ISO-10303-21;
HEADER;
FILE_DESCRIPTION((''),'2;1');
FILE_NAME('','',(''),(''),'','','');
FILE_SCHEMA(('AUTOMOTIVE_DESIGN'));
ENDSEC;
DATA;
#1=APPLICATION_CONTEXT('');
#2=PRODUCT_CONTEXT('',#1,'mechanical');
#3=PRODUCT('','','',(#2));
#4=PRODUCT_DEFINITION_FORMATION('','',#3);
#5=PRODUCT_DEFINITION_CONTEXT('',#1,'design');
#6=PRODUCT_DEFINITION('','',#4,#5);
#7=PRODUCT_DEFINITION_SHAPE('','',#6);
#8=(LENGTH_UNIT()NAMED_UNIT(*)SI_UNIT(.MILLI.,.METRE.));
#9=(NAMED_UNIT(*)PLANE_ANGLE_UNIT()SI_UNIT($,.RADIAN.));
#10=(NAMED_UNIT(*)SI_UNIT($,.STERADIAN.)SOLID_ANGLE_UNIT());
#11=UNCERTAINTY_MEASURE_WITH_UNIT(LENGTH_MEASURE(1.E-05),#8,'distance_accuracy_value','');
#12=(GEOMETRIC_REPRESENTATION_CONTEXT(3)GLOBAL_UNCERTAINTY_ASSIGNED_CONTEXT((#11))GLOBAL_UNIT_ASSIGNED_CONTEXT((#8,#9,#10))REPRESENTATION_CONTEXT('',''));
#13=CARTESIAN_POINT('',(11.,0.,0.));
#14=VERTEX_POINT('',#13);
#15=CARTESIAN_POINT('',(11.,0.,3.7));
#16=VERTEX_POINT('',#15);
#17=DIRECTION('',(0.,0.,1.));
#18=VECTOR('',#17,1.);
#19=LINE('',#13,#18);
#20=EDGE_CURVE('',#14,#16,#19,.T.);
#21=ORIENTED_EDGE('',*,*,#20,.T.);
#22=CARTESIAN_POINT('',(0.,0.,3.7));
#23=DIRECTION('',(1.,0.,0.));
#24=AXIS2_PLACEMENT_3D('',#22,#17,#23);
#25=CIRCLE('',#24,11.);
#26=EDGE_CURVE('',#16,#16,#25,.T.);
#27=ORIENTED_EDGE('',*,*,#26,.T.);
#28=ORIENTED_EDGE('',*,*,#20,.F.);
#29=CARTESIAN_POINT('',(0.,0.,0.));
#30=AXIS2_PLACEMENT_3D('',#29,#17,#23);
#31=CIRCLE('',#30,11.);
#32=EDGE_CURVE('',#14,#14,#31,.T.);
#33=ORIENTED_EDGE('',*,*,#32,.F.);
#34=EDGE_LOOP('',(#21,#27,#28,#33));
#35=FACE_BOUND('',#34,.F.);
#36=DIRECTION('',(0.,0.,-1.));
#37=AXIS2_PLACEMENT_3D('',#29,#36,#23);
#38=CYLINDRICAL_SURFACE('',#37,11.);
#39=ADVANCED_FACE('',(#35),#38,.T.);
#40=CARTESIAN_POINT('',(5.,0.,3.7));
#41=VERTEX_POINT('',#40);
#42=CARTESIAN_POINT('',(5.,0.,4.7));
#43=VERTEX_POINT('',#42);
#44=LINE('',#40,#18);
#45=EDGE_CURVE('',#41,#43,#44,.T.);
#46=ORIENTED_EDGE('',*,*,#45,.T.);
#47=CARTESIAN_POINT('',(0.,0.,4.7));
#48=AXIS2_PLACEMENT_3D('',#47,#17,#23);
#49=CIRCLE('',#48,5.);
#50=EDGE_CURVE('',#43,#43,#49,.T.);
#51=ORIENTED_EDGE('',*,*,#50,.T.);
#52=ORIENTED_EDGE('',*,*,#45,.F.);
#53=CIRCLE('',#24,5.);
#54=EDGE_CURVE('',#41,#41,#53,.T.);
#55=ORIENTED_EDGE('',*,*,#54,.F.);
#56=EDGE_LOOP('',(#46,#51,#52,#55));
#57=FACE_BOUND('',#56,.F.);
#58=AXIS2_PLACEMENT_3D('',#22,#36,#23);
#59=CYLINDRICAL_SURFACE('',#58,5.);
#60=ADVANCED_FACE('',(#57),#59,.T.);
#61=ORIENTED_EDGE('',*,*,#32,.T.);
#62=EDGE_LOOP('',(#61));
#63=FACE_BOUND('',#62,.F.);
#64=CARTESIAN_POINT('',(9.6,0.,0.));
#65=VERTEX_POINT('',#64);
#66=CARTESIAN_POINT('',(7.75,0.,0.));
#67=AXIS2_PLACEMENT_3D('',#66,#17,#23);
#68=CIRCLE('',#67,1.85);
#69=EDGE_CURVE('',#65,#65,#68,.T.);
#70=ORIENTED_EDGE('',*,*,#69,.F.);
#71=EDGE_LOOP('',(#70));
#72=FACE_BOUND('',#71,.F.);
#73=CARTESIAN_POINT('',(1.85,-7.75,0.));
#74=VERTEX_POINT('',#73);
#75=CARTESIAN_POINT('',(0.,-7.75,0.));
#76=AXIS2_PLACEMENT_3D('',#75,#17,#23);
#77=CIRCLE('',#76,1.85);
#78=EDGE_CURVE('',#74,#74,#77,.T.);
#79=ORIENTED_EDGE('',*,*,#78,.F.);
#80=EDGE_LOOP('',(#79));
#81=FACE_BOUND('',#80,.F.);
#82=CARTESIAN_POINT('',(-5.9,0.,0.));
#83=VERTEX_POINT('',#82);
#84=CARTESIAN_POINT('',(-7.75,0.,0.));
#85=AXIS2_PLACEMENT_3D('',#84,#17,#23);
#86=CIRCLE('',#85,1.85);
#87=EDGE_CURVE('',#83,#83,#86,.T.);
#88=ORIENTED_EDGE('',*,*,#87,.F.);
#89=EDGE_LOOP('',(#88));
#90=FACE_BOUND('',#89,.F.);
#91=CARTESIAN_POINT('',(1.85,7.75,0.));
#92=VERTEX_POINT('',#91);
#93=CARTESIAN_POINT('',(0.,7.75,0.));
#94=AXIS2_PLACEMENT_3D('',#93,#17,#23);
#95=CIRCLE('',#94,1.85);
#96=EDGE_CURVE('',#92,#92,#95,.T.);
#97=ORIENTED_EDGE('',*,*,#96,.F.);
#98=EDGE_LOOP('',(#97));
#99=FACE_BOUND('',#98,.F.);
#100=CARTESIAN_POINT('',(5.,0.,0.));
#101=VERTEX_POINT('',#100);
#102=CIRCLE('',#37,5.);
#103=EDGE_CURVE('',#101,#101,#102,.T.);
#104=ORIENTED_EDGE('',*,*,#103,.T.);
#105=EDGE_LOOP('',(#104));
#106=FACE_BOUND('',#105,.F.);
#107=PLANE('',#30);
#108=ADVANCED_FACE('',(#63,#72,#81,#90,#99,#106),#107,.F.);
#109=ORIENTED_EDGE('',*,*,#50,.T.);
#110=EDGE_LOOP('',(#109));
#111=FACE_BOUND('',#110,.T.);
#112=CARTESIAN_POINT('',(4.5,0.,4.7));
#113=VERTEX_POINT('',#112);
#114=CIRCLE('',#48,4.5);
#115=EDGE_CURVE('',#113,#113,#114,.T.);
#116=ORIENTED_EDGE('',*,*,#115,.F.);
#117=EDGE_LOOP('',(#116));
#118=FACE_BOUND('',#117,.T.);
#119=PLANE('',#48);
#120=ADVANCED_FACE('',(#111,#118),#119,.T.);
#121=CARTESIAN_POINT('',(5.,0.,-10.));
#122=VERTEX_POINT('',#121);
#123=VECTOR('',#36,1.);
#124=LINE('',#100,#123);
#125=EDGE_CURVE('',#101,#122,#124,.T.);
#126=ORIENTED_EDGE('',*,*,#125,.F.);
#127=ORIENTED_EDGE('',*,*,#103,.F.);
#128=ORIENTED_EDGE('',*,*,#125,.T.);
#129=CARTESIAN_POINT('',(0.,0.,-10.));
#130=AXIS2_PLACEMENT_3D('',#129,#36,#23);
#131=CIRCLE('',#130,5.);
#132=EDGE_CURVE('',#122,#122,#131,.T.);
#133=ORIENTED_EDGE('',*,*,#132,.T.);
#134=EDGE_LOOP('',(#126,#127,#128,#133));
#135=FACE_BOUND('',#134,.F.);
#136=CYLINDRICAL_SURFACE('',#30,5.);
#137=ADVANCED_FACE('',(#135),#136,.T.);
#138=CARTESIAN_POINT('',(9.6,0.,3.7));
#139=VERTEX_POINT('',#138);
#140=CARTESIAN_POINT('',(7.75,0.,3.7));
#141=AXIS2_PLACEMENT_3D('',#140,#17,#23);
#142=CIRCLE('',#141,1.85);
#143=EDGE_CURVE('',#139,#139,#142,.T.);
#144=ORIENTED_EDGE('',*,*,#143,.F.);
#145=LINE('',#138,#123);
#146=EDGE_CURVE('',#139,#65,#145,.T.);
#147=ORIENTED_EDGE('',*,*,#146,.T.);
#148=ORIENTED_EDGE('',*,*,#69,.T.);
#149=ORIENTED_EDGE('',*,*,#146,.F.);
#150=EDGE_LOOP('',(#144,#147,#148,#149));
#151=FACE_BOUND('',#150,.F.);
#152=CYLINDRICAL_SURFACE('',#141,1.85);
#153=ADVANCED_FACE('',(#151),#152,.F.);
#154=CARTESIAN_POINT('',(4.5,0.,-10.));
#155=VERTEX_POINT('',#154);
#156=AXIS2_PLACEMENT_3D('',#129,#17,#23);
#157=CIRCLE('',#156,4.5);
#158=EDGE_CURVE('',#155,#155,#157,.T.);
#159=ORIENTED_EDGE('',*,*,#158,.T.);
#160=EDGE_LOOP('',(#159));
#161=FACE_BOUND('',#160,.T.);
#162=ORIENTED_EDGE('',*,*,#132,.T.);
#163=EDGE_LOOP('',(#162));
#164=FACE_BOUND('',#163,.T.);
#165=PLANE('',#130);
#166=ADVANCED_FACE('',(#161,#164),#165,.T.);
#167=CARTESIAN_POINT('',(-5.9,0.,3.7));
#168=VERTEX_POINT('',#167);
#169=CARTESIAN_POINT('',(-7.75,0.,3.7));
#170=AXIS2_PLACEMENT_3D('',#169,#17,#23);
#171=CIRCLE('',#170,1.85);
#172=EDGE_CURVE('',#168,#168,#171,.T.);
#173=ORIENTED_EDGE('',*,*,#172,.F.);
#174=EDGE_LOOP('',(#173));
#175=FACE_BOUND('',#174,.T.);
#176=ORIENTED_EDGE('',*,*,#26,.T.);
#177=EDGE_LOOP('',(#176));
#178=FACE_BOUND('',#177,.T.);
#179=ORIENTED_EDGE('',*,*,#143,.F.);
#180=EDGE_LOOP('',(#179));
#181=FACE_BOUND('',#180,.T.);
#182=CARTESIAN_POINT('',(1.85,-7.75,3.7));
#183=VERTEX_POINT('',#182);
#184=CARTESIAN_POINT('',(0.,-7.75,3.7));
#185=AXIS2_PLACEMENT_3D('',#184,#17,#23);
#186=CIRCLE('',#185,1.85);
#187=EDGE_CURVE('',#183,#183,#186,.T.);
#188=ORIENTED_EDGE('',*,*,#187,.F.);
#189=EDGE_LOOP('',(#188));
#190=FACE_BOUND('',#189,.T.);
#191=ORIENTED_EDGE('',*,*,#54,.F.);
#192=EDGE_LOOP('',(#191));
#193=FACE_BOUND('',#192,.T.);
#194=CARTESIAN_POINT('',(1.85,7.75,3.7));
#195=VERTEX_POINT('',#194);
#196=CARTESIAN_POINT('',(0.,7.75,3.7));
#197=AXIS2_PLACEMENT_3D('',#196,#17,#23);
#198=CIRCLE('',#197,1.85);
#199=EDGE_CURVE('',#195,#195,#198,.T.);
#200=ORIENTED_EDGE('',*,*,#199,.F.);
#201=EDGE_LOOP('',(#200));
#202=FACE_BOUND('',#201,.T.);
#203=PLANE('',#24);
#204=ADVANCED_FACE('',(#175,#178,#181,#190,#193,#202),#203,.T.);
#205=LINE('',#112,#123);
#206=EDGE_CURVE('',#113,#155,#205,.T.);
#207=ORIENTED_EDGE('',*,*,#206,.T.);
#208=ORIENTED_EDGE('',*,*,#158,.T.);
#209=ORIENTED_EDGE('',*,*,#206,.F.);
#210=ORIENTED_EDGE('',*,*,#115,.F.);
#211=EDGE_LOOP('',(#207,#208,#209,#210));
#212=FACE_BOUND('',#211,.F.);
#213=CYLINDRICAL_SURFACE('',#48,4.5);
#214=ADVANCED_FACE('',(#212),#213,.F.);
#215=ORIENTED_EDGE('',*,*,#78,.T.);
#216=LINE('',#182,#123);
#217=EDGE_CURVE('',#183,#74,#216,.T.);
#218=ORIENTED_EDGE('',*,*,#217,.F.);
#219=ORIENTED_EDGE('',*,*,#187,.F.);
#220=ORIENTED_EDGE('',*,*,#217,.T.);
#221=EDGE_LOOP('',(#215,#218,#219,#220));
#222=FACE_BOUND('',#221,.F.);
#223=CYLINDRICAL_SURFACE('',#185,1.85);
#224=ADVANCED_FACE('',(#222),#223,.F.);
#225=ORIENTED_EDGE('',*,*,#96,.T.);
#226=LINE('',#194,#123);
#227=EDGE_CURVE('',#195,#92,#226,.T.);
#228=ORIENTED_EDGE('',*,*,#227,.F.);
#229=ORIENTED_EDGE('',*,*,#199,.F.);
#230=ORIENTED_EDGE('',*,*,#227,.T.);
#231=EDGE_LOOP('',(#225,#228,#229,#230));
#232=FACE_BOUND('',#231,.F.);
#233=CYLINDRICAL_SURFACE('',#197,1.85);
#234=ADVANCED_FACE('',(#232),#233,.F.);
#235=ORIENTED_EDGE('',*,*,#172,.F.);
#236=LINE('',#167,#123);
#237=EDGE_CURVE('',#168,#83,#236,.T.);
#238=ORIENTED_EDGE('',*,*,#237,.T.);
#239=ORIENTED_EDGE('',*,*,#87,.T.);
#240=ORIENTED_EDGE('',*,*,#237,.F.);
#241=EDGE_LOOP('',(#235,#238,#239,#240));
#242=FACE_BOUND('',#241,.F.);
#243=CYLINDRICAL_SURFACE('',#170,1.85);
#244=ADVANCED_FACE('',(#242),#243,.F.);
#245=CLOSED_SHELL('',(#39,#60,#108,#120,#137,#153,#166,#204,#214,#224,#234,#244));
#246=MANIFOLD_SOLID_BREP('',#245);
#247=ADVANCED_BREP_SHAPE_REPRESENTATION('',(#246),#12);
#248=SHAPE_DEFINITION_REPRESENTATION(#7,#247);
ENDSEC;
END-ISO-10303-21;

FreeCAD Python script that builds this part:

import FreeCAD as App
import Part
import Sketcher

V = App.Vector

doc = App.newDocument("Part")
body = doc.addObject("PartDesign::Body", "Body")

# Sketch on XY plane
sketch1 = body.newObject("Sketcher::SketchObject", "Sketch")
sketch1.AttachmentSupport = (doc.getObject("XY_Plane"), [""])
sketch1.MapMode = "FlatFace"
sketch1.addGeometry(Part.Circle(V(0, 0, 0), V(0, 0, 1), 11), False)
sketch1.addConstraint(Sketcher.Constraint("Coincident", 0, 3, -1, 1))
sketch1.addConstraint(Sketcher.Constraint("Diameter", 0, 22.0))
pad1 = body.newObject("PartDesign::Pad", "Pad")
pad1.Profile = sketch1
pad1.Length = 3.7

# Sketch on XY plane
sketch2 = body.newObject("Sketcher::SketchObject", "Sketch001")
sketch2.AttachmentSupport = (doc.getObject("XY_Plane"), [""])
sketch2.MapMode = "FlatFace"
sketch2.AttachmentOffset = App.Placement(V(0, 0, 3.7), App.Rotation())
sketch2.addGeometry(Part.Circle(V(0, 0, 0), V(0, 0, 1), 5), False)
sketch2.addConstraint(Sketcher.Constraint("Coincident", 0, 3, -1, 1))
sketch2.addConstraint(Sketcher.Constraint("Diameter", 0, 10.0))
pad2 = body.newObject("PartDesign::Pad", "Pad001")
pad2.Profile = sketch2
pad2.Length = 1

# Sketch on XY plane
sketch3 = body.newObject("Sketcher::SketchObject", "Sketch002")
sketch3.AttachmentSupport = (doc.getObject("XY_Plane"), [""])
sketch3.MapMode = "FlatFace"
sketch3.addGeometry(Part.Circle(V(0, 0, 0), V(0, 0, 1), 5), False)
sketch3.addConstraint(Sketcher.Constraint("Coincident", 0, 3, -1, 1))
sketch3.addConstraint(Sketcher.Constraint("Diameter", 0, 10.0))
pad3 = body.newObject("PartDesign::Pad", "Pad002")
pad3.Profile = sketch3
pad3.Length = 10
pad3.Reversed = True

# Sketch on XY plane
sketch4 = body.newObject("Sketcher::SketchObject", "Sketch003")
sketch4.AttachmentSupport = (doc.getObject("XY_Plane"), [""])
sketch4.MapMode = "FlatFace"
sketch4.AttachmentOffset = App.Placement(V(0, 0, 4.7), App.Rotation())
sketch4.addGeometry(Part.Circle(V(0, 0, 0), V(0, 0, 1), 4.5), False)
sketch4.addConstraint(Sketcher.Constraint("Coincident", 0, 3, -1, 1))
sketch4.addConstraint(Sketcher.Constraint("Diameter", 0, 9.0))
pocket1 = body.newObject("PartDesign::Pocket", "Pocket")
pocket1.Profile = sketch4
pocket1.Type = "ThroughAll"

# Sketch on XY plane
sketch5 = body.newObject("Sketcher::SketchObject", "Sketch004")
sketch5.AttachmentSupport = (doc.getObject("XY_Plane"), [""])
sketch5.MapMode = "FlatFace"
sketch5.AttachmentOffset = App.Placement(V(0, 0, 3.7), App.Rotation())
sketch5.addGeometry(Part.Circle(V(0, 7.8, 0), V(0, 0, 1), 1.9), False)
sketch5.addGeometry(Part.Circle(V(-7.8, 0, 0), V(0, 0, 1), 1.9), False)
sketch5.addGeometry(Part.Circle(V(0, -7.8, 0), V(0, 0, 1), 1.9), False)
sketch5.addGeometry(Part.Circle(V(7.8, 0, 0), V(0, 0, 1), 1.9), False)
sketch5.addConstraint(Sketcher.Constraint("Equal", 0, 1))
sketch5.addConstraint(Sketcher.Constraint("Equal", 1, 2))
sketch5.addConstraint(Sketcher.Constraint("Equal", 2, 3))
sketch5.addConstraint(Sketcher.Constraint("Symmetric", 0, 3, 2, 3, -1, 1))
sketch5.addConstraint(Sketcher.Constraint("Symmetric", 1, 3, 3, 3, -1, 1))
sketch5.addConstraint(Sketcher.Constraint("PointOnObject", 0, 3, -2))
sketch5.addConstraint(Sketcher.Constraint("PointOnObject", 1, 3, -1))
sketch5.addConstraint(Sketcher.Constraint("Diameter", 0, 3.7))
sketch5.addConstraint(Sketcher.Constraint("DistanceY", 2, 3, 0, 3, 15.5))
sketch5.addConstraint(Sketcher.Constraint("DistanceX", 1, 3, 3, 3, 15.5))
pocket2 = body.newObject("PartDesign::Pocket", "Pocket001")
pocket2.Profile = sketch5
pocket2.Type = "ThroughAll"

doc.recompute()
